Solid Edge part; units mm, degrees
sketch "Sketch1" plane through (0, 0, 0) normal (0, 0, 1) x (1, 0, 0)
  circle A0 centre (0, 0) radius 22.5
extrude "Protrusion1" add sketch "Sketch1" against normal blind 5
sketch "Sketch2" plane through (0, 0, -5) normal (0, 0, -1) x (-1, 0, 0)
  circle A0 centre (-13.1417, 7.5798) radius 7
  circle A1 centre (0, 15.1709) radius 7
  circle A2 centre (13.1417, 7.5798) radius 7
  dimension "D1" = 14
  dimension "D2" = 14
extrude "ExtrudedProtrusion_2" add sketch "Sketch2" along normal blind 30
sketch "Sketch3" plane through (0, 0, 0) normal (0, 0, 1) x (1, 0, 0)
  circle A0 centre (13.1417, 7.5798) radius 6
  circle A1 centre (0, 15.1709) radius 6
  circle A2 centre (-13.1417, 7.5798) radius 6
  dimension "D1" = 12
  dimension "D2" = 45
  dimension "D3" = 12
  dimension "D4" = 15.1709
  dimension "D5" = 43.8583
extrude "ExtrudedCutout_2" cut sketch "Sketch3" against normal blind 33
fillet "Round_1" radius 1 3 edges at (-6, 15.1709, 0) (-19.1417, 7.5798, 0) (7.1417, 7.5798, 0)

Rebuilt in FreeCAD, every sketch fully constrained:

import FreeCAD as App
import Part
import Sketcher


def edges_at(feature, points):
    """Names of the edges that pass closest to the given points."""
    edges = feature.Shape.Edges
    near = lambda p: min(range(len(edges)), key=lambda i: edges[i].distToShape(Part.Vertex(*p))[0])
    return sorted({f"Edge{near(p) + 1}" for p in points})

doc = App.newDocument("Part")
params = doc.addObject("Spreadsheet::Sheet", "Params")
for row, (alias, value) in enumerate([
    ("sketch1_diameter", "45 mm"),
    ("pad1_length", "5 mm"),
    ("sketch2_diameter", "14 mm"),
    ("pad2_length", "30 mm"),
    ("sketch3_diameter", "12 mm"),
    ("pocket1_length", "33 mm"),
    ("fillet_radius", "1 mm"),
], start=1):
    params.set(f"A{row}", alias)
    params.set(f"B{row}", "=" + value)
    params.setAlias(f"B{row}", alias)

body = doc.addObject("PartDesign::Body", "Body")

sketch1 = body.newObject("Sketcher::SketchObject", "Sketch")
sketch1.AttachmentSupport = (doc.getObject("XY_Plane"), [""])
sketch1.MapMode = "FlatFace"
sketch1.addGeometry(Part.Circle(App.Vector(0, 0, 0), App.Vector(0, 0, 1), 22.5), False)
sketch1.addConstraint(Sketcher.Constraint("Coincident", 0, 3, -1, 1))
sketch1.addConstraint(Sketcher.Constraint("Diameter", 0, 45.0))
sketch1.setExpression("Constraints[1]", "Params.sketch1_diameter")
pad1 = body.newObject("PartDesign::Pad", "Pad")
pad1.Profile = sketch1
pad1.setExpression("Length", "Params.pad1_length")
pad1.Reversed = True

sketch2 = body.newObject("Sketcher::SketchObject", "Sketch001")
sketch2.AttachmentSupport = (doc.getObject("XY_Plane"), [""])
sketch2.MapMode = "FlatFace"
sketch2.AttachmentOffset = App.Placement(App.Vector(0, 0, -5), App.Rotation())
sketch2.addGeometry(Part.Circle(App.Vector(13.1417, 7.5798, 0), App.Vector(0, 0, 1), 7), False)
sketch2.addGeometry(Part.Circle(App.Vector(0, 15.1709, 0), App.Vector(0, 0, 1), 7), False)
sketch2.addGeometry(Part.Circle(App.Vector(-13.1417, 7.5798, 0), App.Vector(0, 0, 1), 7), False)
sketch2.addConstraint(Sketcher.Constraint("Equal", 0, 1))
sketch2.addConstraint(Sketcher.Constraint("Equal", 1, 2))
sketch2.addConstraint(Sketcher.Constraint("Symmetric", 0, 3, 2, 3, -2))
sketch2.addConstraint(Sketcher.Constraint("PointOnObject", 1, 3, -2))
sketch2.addConstraint(Sketcher.Constraint("Diameter", 0, 14.0))
sketch2.addConstraint(Sketcher.Constraint("DistanceY", -1, 1, 1, 3, 15.171))
sketch2.addConstraint(Sketcher.Constraint("DistanceY", 0, 3, 1, 3, 7.591))
sketch2.addConstraint(Sketcher.Constraint("DistanceX", -1, 1, 0, 3, 13.1417))
sketch2.setExpression("Constraints[4]", "Params.sketch2_diameter")
pad2 = body.newObject("PartDesign::Pad", "Pad001")
pad2.Profile = sketch2
pad2.setExpression("Length", "Params.pad2_length")
pad2.Reversed = True

sketch3 = body.newObject("Sketcher::SketchObject", "Sketch002")
sketch3.AttachmentSupport = (doc.getObject("XY_Plane"), [""])
sketch3.MapMode = "FlatFace"
sketch3.addGeometry(Part.Circle(App.Vector(13.1417, 7.5798, 0), App.Vector(0, 0, 1), 6), False)
sketch3.addGeometry(Part.Circle(App.Vector(0, 15.1709, 0), App.Vector(0, 0, 1), 6), False)
sketch3.addGeometry(Part.Circle(App.Vector(-13.1417, 7.5798, 0), App.Vector(0, 0, 1), 6), False)
sketch3.addConstraint(Sketcher.Constraint("Equal", 0, 1))
sketch3.addConstraint(Sketcher.Constraint("Equal", 1, 2))
sketch3.addConstraint(Sketcher.Constraint("Symmetric", 0, 3, 2, 3, -2))
sketch3.addConstraint(Sketcher.Constraint("PointOnObject", 1, 3, -2))
sketch3.addConstraint(Sketcher.Constraint("Diameter", 0, 12.0))
sketch3.addConstraint(Sketcher.Constraint("DistanceY", -1, 1, 1, 3, 15.171))
sketch3.addConstraint(Sketcher.Constraint("DistanceY", 0, 3, 1, 3, 7.591))
sketch3.addConstraint(Sketcher.Constraint("DistanceX", -1, 1, 0, 3, 13.1417))
sketch3.setExpression("Constraints[4]", "Params.sketch3_diameter")
pocket1 = body.newObject("PartDesign::Pocket", "Pocket")
pocket1.Profile = sketch3
pocket1.setExpression("Length", "Params.pocket1_length")
doc.recompute()

fillet = body.newObject("PartDesign::Fillet", "Fillet")
fillet.Base = (pocket1, edges_at(pocket1, [(-6, 15.171, 0), (-19.142, 7.58, 0), (7.142, 7.58, 0)]))
fillet.setExpression("Radius", "Params.fillet_radius")

doc.recompute()
